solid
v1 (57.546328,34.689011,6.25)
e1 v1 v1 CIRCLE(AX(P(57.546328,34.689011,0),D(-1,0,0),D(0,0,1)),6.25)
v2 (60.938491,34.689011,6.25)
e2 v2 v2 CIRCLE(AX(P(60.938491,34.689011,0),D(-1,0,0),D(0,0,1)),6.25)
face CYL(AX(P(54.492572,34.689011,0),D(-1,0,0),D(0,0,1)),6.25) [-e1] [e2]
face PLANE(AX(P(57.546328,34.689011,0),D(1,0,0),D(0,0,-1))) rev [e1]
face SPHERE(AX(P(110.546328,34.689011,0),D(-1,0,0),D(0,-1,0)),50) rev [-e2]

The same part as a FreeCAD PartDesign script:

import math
import FreeCAD as App
import Part
import Sketcher

V = App.Vector
Q = App.Units.Quantity

doc = App.newDocument("Part")
body = doc.addObject("PartDesign::Body", "Body")

sketch1 = body.newObject("Sketcher::SketchObject", "Sketch")
sketch1.AttachmentSupport = (doc.getObject("XY_Plane"), [""])
sketch1.MapMode = "FlatFace"
sketch1.addGeometry([
    Part.LineSegment(V(57.5, 40.9, 0), V(57.5, 34.7, 0)),
    Part.LineSegment(V(57.5, 34.7, 0), V(60.5, 34.7, 0)),
    Part.ArcOfCircle(Part.Circle(V(110.5, 34.7, 0), V(0, 0, 1), 50), math.radians(172.82), math.radians(180)),
    Part.LineSegment(V(60.9, 40.9, 0), V(57.5, 40.9, 0)),
], False)
sketch1.addGeometry(Part.LineSegment(V(57.5, 34.7, 0), V(110.5, 34.7, 0)), True)
sketch1.addConstraint([
    Sketcher.Constraint("Coincident", 0, 2, 1, 1),
    Sketcher.Constraint("Coincident", 1, 2, 2, 2),
    Sketcher.Constraint("Coincident", 2, 1, 3, 1),
    Sketcher.Constraint("Coincident", 3, 2, 0, 1),
    Sketcher.Constraint("Vertical", 0),
    Sketcher.Constraint("Horizontal", 1),
    Sketcher.Constraint("Horizontal", 3),
    Sketcher.Constraint("Horizontal", 4),
    Sketcher.Constraint("Coincident", 4, 1, 0, 2),
    Sketcher.Constraint("Coincident", 4, 2, 2, 3),
    Sketcher.Constraint("Radius", 2, Q("50 mm")),
    Sketcher.Constraint("DistanceX", 1, 1, 1, 2, Q("3 mm")),
    Sketcher.Constraint("DistanceY", 0, 2, 0, 1, Q("6.25 mm")),
    Sketcher.Constraint("DistanceY", -1, 1, 2, 3, Q("34.689011 mm")),
    Sketcher.Constraint("DistanceX", -1, 1, 2, 1, Q("60.938491 mm")),
])
revolution = body.newObject("PartDesign::Revolution", "Revolution")
revolution.Profile = sketch1
revolution.ReferenceAxis = (sketch1, ["Axis0"])
revolution.Angle = 360

doc.recompute()
